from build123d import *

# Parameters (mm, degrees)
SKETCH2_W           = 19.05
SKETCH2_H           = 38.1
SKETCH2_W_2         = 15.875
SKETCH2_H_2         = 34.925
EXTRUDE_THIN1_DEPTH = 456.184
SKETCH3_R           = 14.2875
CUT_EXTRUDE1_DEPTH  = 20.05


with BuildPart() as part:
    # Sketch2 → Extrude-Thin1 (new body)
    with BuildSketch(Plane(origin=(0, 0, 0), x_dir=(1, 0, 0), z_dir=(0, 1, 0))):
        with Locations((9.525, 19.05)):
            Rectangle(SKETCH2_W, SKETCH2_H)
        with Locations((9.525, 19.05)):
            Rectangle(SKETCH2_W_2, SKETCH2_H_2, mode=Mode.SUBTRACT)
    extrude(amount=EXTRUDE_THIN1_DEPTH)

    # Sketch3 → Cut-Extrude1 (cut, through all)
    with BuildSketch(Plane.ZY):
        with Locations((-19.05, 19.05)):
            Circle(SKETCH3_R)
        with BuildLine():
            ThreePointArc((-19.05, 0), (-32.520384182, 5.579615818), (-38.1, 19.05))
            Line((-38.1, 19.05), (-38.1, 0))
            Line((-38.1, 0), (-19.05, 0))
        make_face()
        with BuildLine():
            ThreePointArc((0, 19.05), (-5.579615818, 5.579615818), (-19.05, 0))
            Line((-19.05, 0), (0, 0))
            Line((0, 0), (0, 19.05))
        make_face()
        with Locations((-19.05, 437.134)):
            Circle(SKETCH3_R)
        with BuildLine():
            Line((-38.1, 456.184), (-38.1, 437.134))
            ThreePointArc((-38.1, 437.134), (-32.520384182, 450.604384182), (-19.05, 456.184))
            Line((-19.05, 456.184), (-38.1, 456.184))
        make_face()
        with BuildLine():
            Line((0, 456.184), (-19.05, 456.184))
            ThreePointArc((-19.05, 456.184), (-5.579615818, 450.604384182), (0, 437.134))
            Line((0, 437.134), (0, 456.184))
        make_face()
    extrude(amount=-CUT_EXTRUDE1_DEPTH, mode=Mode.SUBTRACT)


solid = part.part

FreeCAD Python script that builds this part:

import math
import FreeCAD as App
import Part
import Sketcher

V = App.Vector
Q = App.Units.Quantity


def add_polygon(sketch, points):
    """Adds a closed chain of lines whose ends are joined by coincident constraints."""
    first, n = sketch.GeometryCount, len(points)
    for a, b in zip(points, points[1:] + points[:1]):
        sketch.addGeometry(Part.LineSegment(App.Vector(*a, 0), App.Vector(*b, 0)), False)
    for i in range(n):
        sketch.addConstraint(Sketcher.Constraint("Coincident", first + i, 2, first + (i + 1) % n, 1))

doc = App.newDocument("Part")
body = doc.addObject("PartDesign::Body", "Body")

# Sketch on XZ plane
sketch1 = body.newObject("Sketcher::SketchObject", "Sketch")
sketch1.AttachmentSupport = (doc.getObject("XZ_Plane"), [""])
sketch1.MapMode = "FlatFace"
add_polygon(sketch1, [(0, -38), (0, 0), (19, 0), (19, -38)])  # lines 0-3
add_polygon(sketch1, [(17, -2), (2, -2), (2, -37), (17, -37)])  # lines 4-7
sketch1.addConstraint([
    Sketcher.Constraint("Vertical", 0),
    Sketcher.Constraint("Horizontal", 1),
    Sketcher.Constraint("Vertical", 2),
    Sketcher.Constraint("Horizontal", 3),
    Sketcher.Constraint("Horizontal", 4),
    Sketcher.Constraint("Vertical", 5),
    Sketcher.Constraint("Horizontal", 6),
    Sketcher.Constraint("Vertical", 7),
    Sketcher.Constraint("Coincident", 0, 2, -1, 1),
    Sketcher.Constraint("DistanceY", 0, 1, 0, 2, Q("1.5 in")),
    Sketcher.Constraint("DistanceX", 1, 1, 1, 2, Q("0.75 in")),
    Sketcher.Constraint("DistanceX", 4, 2, 4, 1, Q("0.625 in")),
    Sketcher.Constraint("DistanceY", 5, 2, 5, 1, Q("1.375 in")),
    Sketcher.Constraint("DistanceX", -1, 1, 4, 2, Q("0.0625 in")),
    Sketcher.Constraint("DistanceY", 4, 2, -1, 1, Q("0.0625 in")),
])
pad1 = body.newObject("PartDesign::Pad", "Pad")
pad1.Profile = sketch1
pad1.Length = Q("17.96 in")
pad1.Reversed = True

# Sketch on YZ plane
sketch2 = body.newObject("Sketcher::SketchObject", "Sketch001")
sketch2.AttachmentSupport = (doc.getObject("YZ_Plane"), [""])
sketch2.MapMode = "FlatFace"
sketch2.addGeometry([
    Part.Circle(V(19, -19, 0), V(0, 0, 1), 14),  # 0
    Part.ArcOfCircle(Part.Circle(V(19, -19, 0), V(0, 0, 1), 19), math.radians(180), math.radians(270)),  # 1
    Part.LineSegment(V(19, -38, 0), V(0, -38, 0)),  # 2
    Part.LineSegment(V(0, -38, 0), V(0, -19, 0)),  # 3
    Part.ArcOfCircle(Part.Circle(V(19, -19, 0), V(0, 0, 1), 19), math.radians(90), math.radians(180)),  # 4
    Part.LineSegment(V(0, -19, 0), V(0, 0, 0)),  # 5
    Part.LineSegment(V(0, 0, 0), V(19, 0, 0)),  # 6
    Part.Circle(V(437, -19, 0), V(0, 0, 1), 14),  # 7
    Part.LineSegment(V(456, -38, 0), V(437, -38, 0)),  # 8
    Part.ArcOfCircle(Part.Circle(V(437, -19, 0), V(0, 0, 1), 19), math.radians(-90), math.radians(0)),  # 9
    Part.LineSegment(V(456, -19, 0), V(456, -38, 0)),  # 10
    Part.LineSegment(V(456, 0, 0), V(456, -19, 0)),  # 11
    Part.ArcOfCircle(Part.Circle(V(437, -19, 0), V(0, 0, 1), 19), math.radians(0), math.radians(90)),  # 12
    Part.LineSegment(V(437, 0, 0), V(456, 0, 0)),  # 13
], False)
sketch2.addConstraint([
    Sketcher.Constraint("Tangent", 1, 2, 2, 1),
    Sketcher.Constraint("Coincident", 2, 2, 3, 1),
    Sketcher.Constraint("Tangent", 3, 2, 1, 1),
    Sketcher.Constraint("Tangent", 4, 2, 5, 1),
    Sketcher.Constraint("Coincident", 5, 2, 6, 1),
    Sketcher.Constraint("Tangent", 6, 2, 4, 1),
    Sketcher.Constraint("Tangent", 8, 2, 9, 1),
    Sketcher.Constraint("Tangent", 9, 2, 10, 1),
    Sketcher.Constraint("Coincident", 10, 2, 8, 1),
    Sketcher.Constraint("Tangent", 11, 2, 12, 1),
    Sketcher.Constraint("Tangent", 12, 2, 13, 1),
    Sketcher.Constraint("Coincident", 13, 2, 11, 1),
    Sketcher.Constraint("Horizontal", 2),
    Sketcher.Constraint("Vertical", 3),
    Sketcher.Constraint("Vertical", 5),
    Sketcher.Constraint("Horizontal", 6),
    Sketcher.Constraint("Horizontal", 8),
    Sketcher.Constraint("Vertical", 10),
    Sketcher.Constraint("Vertical", 11),
    Sketcher.Constraint("Horizontal", 13),
    Sketcher.Constraint("Coincident", 5, 2, -1, 1),
    Sketcher.Constraint("Coincident", 1, 3, 0, 3),
    Sketcher.Constraint("Coincident", 4, 3, 0, 3),
    Sketcher.Constraint("Coincident", 9, 3, 7, 3),
    Sketcher.Constraint("Coincident", 12, 3, 7, 3),
    Sketcher.Constraint("Equal", 1, 4),
    Sketcher.Constraint("Equal", 0, 7),
    Sketcher.Constraint("Equal", 4, 9),
    Sketcher.Constraint("Equal", 9, 12),
    Sketcher.Constraint("PointOnObject", 12, 2, -1),
    Sketcher.Constraint("Radius", 1, Q("0.75 in")),
    Sketcher.Constraint("Diameter", 0, Q("1.125 in")),
    Sketcher.Constraint("DistanceX", -1, 1, 7, 3, Q("17.21 in")),
])
pocket1 = body.newObject("PartDesign::Pocket", "Pocket")
pocket1.Profile = sketch2
pocket1.Type = "ThroughAll"
pocket1.Reversed = True

doc.recompute()
